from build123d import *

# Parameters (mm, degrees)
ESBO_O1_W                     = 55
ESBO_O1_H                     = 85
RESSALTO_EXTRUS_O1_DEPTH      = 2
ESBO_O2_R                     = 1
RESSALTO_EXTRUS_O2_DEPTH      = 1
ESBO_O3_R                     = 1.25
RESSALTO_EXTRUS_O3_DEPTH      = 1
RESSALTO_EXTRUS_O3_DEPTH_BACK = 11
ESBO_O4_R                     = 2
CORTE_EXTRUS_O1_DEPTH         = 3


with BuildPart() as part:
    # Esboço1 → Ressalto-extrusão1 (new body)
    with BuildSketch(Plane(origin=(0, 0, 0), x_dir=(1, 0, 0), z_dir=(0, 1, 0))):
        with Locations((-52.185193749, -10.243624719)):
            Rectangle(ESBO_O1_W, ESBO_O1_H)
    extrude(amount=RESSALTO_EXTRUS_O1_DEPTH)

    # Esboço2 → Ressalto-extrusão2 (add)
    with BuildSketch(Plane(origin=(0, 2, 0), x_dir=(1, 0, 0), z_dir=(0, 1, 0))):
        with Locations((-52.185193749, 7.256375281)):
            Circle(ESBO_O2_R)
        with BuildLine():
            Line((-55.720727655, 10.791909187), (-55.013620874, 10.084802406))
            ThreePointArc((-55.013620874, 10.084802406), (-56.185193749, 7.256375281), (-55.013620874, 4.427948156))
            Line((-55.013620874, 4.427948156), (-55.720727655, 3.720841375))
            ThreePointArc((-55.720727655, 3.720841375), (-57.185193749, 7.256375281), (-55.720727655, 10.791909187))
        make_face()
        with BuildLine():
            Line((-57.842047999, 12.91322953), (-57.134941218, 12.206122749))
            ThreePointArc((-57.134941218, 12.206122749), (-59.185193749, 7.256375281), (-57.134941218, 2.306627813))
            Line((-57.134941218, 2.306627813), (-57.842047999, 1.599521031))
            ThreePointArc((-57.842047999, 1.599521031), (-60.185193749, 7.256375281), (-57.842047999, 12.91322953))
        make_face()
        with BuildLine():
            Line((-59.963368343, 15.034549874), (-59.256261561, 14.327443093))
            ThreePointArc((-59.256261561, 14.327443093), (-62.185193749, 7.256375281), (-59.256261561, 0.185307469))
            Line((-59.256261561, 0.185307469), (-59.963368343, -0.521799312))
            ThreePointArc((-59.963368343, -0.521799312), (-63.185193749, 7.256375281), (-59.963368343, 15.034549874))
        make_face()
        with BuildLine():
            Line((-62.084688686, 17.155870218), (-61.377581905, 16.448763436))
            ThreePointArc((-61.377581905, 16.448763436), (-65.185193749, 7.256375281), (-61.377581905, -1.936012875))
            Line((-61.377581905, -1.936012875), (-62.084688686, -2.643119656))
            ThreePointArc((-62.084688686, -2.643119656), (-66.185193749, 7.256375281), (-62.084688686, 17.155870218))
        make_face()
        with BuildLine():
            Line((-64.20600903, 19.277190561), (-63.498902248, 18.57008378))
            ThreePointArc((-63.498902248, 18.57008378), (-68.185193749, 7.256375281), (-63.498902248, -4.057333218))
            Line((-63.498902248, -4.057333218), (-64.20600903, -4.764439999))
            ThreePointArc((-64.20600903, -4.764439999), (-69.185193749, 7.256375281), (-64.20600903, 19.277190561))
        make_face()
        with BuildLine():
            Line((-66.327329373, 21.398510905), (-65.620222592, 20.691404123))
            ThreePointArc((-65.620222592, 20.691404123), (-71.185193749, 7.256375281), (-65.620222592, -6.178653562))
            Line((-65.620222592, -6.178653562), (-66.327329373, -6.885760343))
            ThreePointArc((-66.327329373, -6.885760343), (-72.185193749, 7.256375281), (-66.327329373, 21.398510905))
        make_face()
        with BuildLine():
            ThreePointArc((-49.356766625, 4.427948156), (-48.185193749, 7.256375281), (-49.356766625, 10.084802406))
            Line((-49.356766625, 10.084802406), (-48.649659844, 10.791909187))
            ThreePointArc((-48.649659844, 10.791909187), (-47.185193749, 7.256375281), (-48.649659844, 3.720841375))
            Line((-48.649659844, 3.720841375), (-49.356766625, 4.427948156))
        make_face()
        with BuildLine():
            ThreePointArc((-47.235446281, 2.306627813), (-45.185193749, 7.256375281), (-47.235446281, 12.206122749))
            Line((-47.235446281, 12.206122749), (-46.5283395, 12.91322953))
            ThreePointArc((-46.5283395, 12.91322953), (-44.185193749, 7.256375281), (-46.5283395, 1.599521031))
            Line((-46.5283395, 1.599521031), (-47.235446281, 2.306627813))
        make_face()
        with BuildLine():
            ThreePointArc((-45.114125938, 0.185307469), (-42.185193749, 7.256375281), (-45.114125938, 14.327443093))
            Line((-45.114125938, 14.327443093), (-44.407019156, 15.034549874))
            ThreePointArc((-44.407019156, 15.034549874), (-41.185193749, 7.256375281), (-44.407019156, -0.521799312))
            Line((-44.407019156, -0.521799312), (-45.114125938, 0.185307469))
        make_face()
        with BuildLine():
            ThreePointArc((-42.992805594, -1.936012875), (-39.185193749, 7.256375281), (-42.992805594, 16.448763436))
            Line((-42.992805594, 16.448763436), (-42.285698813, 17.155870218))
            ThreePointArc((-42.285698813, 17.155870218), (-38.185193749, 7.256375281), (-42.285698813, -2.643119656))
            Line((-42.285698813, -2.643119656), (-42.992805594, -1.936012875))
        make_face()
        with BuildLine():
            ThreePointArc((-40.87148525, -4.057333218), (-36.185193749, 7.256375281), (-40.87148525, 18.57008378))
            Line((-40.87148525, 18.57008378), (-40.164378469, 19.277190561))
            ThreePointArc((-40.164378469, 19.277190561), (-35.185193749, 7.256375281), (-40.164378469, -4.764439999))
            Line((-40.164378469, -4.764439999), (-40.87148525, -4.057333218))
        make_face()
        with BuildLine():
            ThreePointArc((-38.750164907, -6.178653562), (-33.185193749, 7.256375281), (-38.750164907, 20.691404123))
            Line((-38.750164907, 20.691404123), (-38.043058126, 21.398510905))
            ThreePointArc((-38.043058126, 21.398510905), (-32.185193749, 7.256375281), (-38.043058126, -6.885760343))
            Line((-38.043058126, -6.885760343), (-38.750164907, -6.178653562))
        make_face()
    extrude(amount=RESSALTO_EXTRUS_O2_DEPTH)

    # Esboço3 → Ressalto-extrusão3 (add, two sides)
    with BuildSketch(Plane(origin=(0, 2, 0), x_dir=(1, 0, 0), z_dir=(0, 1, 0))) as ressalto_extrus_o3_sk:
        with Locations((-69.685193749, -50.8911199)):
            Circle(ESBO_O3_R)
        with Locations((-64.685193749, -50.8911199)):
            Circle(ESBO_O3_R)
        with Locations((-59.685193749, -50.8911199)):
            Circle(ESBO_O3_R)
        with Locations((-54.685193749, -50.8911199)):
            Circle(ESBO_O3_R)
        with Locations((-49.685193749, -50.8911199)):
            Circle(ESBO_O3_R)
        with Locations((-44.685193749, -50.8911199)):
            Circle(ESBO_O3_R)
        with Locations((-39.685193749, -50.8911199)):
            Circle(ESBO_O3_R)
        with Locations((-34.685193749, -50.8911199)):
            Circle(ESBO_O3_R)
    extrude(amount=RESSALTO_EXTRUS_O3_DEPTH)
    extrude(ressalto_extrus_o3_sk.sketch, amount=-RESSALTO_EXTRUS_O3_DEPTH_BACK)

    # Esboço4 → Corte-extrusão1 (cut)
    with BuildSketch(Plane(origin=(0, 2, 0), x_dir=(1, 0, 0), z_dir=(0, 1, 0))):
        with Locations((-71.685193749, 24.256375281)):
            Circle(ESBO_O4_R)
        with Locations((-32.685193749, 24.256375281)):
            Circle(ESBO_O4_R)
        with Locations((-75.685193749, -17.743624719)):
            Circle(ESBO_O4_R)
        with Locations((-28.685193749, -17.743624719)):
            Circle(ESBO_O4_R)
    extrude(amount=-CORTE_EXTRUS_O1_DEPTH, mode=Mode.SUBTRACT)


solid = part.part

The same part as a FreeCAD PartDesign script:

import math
import FreeCAD as App
import Part
import Sketcher
Q = App.Units.Quantity

doc = App.newDocument("Part")
body = doc.addObject("PartDesign::Body", "Body")

sketch1 = body.newObject("Sketcher::SketchObject", "Sketch")
sketch1.AttachmentSupport = (doc.getObject("XZ_Plane"), [""])
sketch1.MapMode = "FlatFace"
sketch1.addGeometry([
    Part.LineSegment(App.Vector(-80, -32, 0), App.Vector(-80, 53, 0)),
    Part.LineSegment(App.Vector(-80, 53, 0), App.Vector(-25, 53, 0)),
    Part.LineSegment(App.Vector(-25, 53, 0), App.Vector(-25, -32, 0)),
    Part.LineSegment(App.Vector(-25, -32, 0), App.Vector(-80, -32, 0)),
], False)
sketch1.addConstraint([
    Sketcher.Constraint("Coincident", 0, 2, 1, 1),
    Sketcher.Constraint("Coincident", 1, 2, 2, 1),
    Sketcher.Constraint("Coincident", 2, 2, 3, 1),
    Sketcher.Constraint("Coincident", 3, 2, 0, 1),
    Sketcher.Constraint("Vertical", 0),
    Sketcher.Constraint("Horizontal", 1),
    Sketcher.Constraint("Vertical", 2),
    Sketcher.Constraint("Horizontal", 3),
    Sketcher.Constraint("DistanceX", 1, 1, 1, 2, Q("55 mm")),
    Sketcher.Constraint("DistanceY", 0, 1, 0, 2, Q("85 mm")),
    Sketcher.Constraint("DistanceX", 0, 2, -1, 1, Q("79.685194 mm")),
    Sketcher.Constraint("DistanceY", -1, 1, 0, 2, Q("52.743625 mm")),
])
pad1 = body.newObject("PartDesign::Pad", "Pad")
pad1.Profile = sketch1
pad1.Length = 2
pad1.Reversed = True

sketch2 = body.newObject("Sketcher::SketchObject", "Sketch001")
sketch2.AttachmentSupport = (doc.getObject("XZ_Plane"), [""])
sketch2.MapMode = "FlatFace"
sketch2.AttachmentOffset = App.Placement(App.Vector(0, 0, -2), App.Rotation())
sketch2.addGeometry([
    Part.Circle(App.Vector(-52.2, -7.3, 0), App.Vector(0, 0, 1), 1),
    Part.LineSegment(App.Vector(-55, -10.1, 0), App.Vector(-55.7, -10.8, 0)),
    Part.ArcOfCircle(Part.Circle(App.Vector(-52.2, -7.3, 0), App.Vector(0, 0, 1), 5), math.radians(135), math.radians(225)),
    Part.LineSegment(App.Vector(-55.7, -3.7, 0), App.Vector(-55, -4.4, 0)),
    Part.ArcOfCircle(Part.Circle(App.Vector(-52.2, -7.3, 0), App.Vector(0, 0, 1), 4), math.radians(135), math.radians(225)),
    Part.LineSegment(App.Vector(-57.1, -12.2, 0), App.Vector(-57.8, -12.9, 0)),
    Part.ArcOfCircle(Part.Circle(App.Vector(-52.2, -7.3, 0), App.Vector(0, 0, 1), 8), math.radians(135), math.radians(225)),
    Part.LineSegment(App.Vector(-57.8, -1.6, 0), App.Vector(-57.1, -2.3, 0)),
    Part.ArcOfCircle(Part.Circle(App.Vector(-52.2, -7.3, 0), App.Vector(0, 0, 1), 7), math.radians(135), math.radians(225)),
    Part.LineSegment(App.Vector(-59.3, -14.3, 0), App.Vector(-60, -15, 0)),
    Part.ArcOfCircle(Part.Circle(App.Vector(-52.2, -7.3, 0), App.Vector(0, 0, 1), 11), math.radians(135), math.radians(225)),
    Part.LineSegment(App.Vector(-60, 0.5, 0), App.Vector(-59.3, -0.2, 0)),
    Part.ArcOfCircle(Part.Circle(App.Vector(-52.2, -7.3, 0), App.Vector(0, 0, 1), 10), math.radians(135), math.radians(225)),
    Part.LineSegment(App.Vector(-61.4, -16.4, 0), App.Vector(-62.1, -17.2, 0)),
    Part.ArcOfCircle(Part.Circle(App.Vector(-52.2, -7.3, 0), App.Vector(0, 0, 1), 14), math.radians(135), math.radians(225)),
    Part.LineSegment(App.Vector(-62.1, 2.6, 0), App.Vector(-61.4, 1.9, 0)),
    Part.ArcOfCircle(Part.Circle(App.Vector(-52.2, -7.3, 0), App.Vector(0, 0, 1), 13), math.radians(135), math.radians(225)),
    Part.LineSegment(App.Vector(-63.5, -18.6, 0), App.Vector(-64.2, -19.3, 0)),
    Part.ArcOfCircle(Part.Circle(App.Vector(-52.2, -7.3, 0), App.Vector(0, 0, 1), 17), math.radians(135), math.radians(225)),
    Part.LineSegment(App.Vector(-64.2, 4.8, 0), App.Vector(-63.5, 4.1, 0)),
    Part.ArcOfCircle(Part.Circle(App.Vector(-52.2, -7.3, 0), App.Vector(0, 0, 1), 16), math.radians(135), math.radians(225)),
    Part.LineSegment(App.Vector(-65.6, -20.7, 0), App.Vector(-66.3, -21.4, 0)),
    Part.ArcOfCircle(Part.Circle(App.Vector(-52.2, -7.3, 0), App.Vector(0, 0, 1), 20), math.radians(135), math.radians(225)),
    Part.LineSegment(App.Vector(-66.3, 6.9, 0), App.Vector(-65.6, 6.2, 0)),
    Part.ArcOfCircle(Part.Circle(App.Vector(-52.2, -7.3, 0), App.Vector(0, 0, 1), 19), math.radians(135), math.radians(225)),
    Part.ArcOfCircle(Part.Circle(App.Vector(-52.2, -7.3, 0), App.Vector(0, 0, 1), 4), math.radians(-45), math.radians(45)),
    Part.LineSegment(App.Vector(-49.4, -4.4, 0), App.Vector(-48.6, -3.7, 0)),
    Part.ArcOfCircle(Part.Circle(App.Vector(-52.2, -7.3, 0), App.Vector(0, 0, 1), 5), math.radians(-45), math.radians(45)),
    Part.LineSegment(App.Vector(-48.6, -10.8, 0), App.Vector(-49.4, -10.1, 0)),
    Part.ArcOfCircle(Part.Circle(App.Vector(-52.2, -7.3, 0), App.Vector(0, 0, 1), 7), math.radians(-45), math.radians(45)),
    Part.LineSegment(App.Vector(-47.2, -2.3, 0), App.Vector(-46.5, -1.6, 0)),
    Part.ArcOfCircle(Part.Circle(App.Vector(-52.2, -7.3, 0), App.Vector(0, 0, 1), 8), math.radians(-45), math.radians(45)),
    Part.LineSegment(App.Vector(-46.5, -12.9, 0), App.Vector(-47.2, -12.2, 0)),
    Part.ArcOfCircle(Part.Circle(App.Vector(-52.2, -7.3, 0), App.Vector(0, 0, 1), 10), math.radians(-45), math.radians(45)),
    Part.LineSegment(App.Vector(-45.1, -0.2, 0), App.Vector(-44.4, 0.5, 0)),
    Part.ArcOfCircle(Part.Circle(App.Vector(-52.2, -7.3, 0), App.Vector(0, 0, 1), 11), math.radians(-45), math.radians(45)),
    Part.LineSegment(App.Vector(-44.4, -15, 0), App.Vector(-45.1, -14.3, 0)),
    Part.ArcOfCircle(Part.Circle(App.Vector(-52.2, -7.3, 0), App.Vector(0, 0, 1), 13), math.radians(-45), math.radians(45)),
    Part.LineSegment(App.Vector(-43, 1.9, 0), App.Vector(-42.3, 2.6, 0)),
    Part.ArcOfCircle(Part.Circle(App.Vector(-52.2, -7.3, 0), App.Vector(0, 0, 1), 14), math.radians(-45), math.radians(45)),
    Part.LineSegment(App.Vector(-42.3, -17.2, 0), App.Vector(-43, -16.4, 0)),
    Part.ArcOfCircle(Part.Circle(App.Vector(-52.2, -7.3, 0), App.Vector(0, 0, 1), 16), math.radians(-45), math.radians(45)),
    Part.LineSegment(App.Vector(-40.9, 4.1, 0), App.Vector(-40.2, 4.8, 0)),
    Part.ArcOfCircle(Part.Circle(App.Vector(-52.2, -7.3, 0), App.Vector(0, 0, 1), 17), math.radians(-45), math.radians(45)),
    Part.LineSegment(App.Vector(-40.2, -19.3, 0), App.Vector(-40.9, -18.6, 0)),
    Part.ArcOfCircle(Part.Circle(App.Vector(-52.2, -7.3, 0), App.Vector(0, 0, 1), 19), math.radians(-45), math.radians(45)),
    Part.LineSegment(App.Vector(-38.8, 6.2, 0), App.Vector(-38, 6.9, 0)),
    Part.ArcOfCircle(Part.Circle(App.Vector(-52.2, -7.3, 0), App.Vector(0, 0, 1), 20), math.radians(-45), math.radians(45)),
    Part.LineSegment(App.Vector(-38, -21.4, 0), App.Vector(-38.8, -20.7, 0)),
], False)
sketch2.addConstraint([
    Sketcher.Constraint("Coincident", 1, 2, 2, 2),
    Sketcher.Constraint("Coincident", 2, 1, 3, 1),
    Sketcher.Constraint("Coincident", 3, 2, 4, 1),
    Sketcher.Constraint("Coincident", 4, 2, 1, 1),
    Sketcher.Constraint("Coincident", 5, 2, 6, 2),
    Sketcher.Constraint("Coincident", 6, 1, 7, 1),
    Sketcher.Constraint("Coincident", 7, 2, 8, 1),
    Sketcher.Constraint("Coincident", 8, 2, 5, 1),
    Sketcher.Constraint("Coincident", 9, 2, 10, 2),
    Sketcher.Constraint("Coincident", 10, 1, 11, 1),
    Sketcher.Constraint("Coincident", 11, 2, 12, 1),
    Sketcher.Constraint("Coincident", 12, 2, 9, 1),
    Sketcher.Constraint("Coincident", 13, 2, 14, 2),
    Sketcher.Constraint("Coincident", 14, 1, 15, 1),
    Sketcher.Constraint("Coincident", 15, 2, 16, 1),
    Sketcher.Constraint("Coincident", 16, 2, 13, 1),
    Sketcher.Constraint("Coincident", 17, 2, 18, 2),
    Sketcher.Constraint("Coincident", 18, 1, 19, 1),
    Sketcher.Constraint("Coincident", 19, 2, 20, 1),
    Sketcher.Constraint("Coincident", 20, 2, 17, 1),
    Sketcher.Constraint("Coincident", 21, 2, 22, 2),
    Sketcher.Constraint("Coincident", 22, 1, 23, 1),
    Sketcher.Constraint("Coincident", 23, 2, 24, 1),
    Sketcher.Constraint("Coincident", 24, 2, 21, 1),
    Sketcher.Constraint("Coincident", 25, 2, 26, 1),
    Sketcher.Constraint("Coincident", 26, 2, 27, 2),
    Sketcher.Constraint("Coincident", 27, 1, 28, 1),
    Sketcher.Constraint("Coincident", 28, 2, 25, 1),
    Sketcher.Constraint("Coincident", 29, 2, 30, 1),
    Sketcher.Constraint("Coincident", 30, 2, 31, 2),
    Sketcher.Constraint("Coincident", 31, 1, 32, 1),
    Sketcher.Constraint("Coincident", 32, 2, 29, 1),
    Sketcher.Constraint("Coincident", 33, 2, 34, 1),
    Sketcher.Constraint("Coincident", 34, 2, 35, 2),
    Sketcher.Constraint("Coincident", 35, 1, 36, 1),
    Sketcher.Constraint("Coincident", 36, 2, 33, 1),
    Sketcher.Constraint("Coincident", 37, 2, 38, 1),
    Sketcher.Constraint("Coincident", 38, 2, 39, 2),
    Sketcher.Constraint("Coincident", 39, 1, 40, 1),
    Sketcher.Constraint("Coincident", 40, 2, 37, 1),
    Sketcher.Constraint("Coincident", 41, 2, 42, 1),
    Sketcher.Constraint("Coincident", 42, 2, 43, 2),
    Sketcher.Constraint("Coincident", 43, 1, 44, 1),
    Sketcher.Constraint("Coincident", 44, 2, 41, 1),
    Sketcher.Constraint("Coincident", 45, 2, 46, 1),
    Sketcher.Constraint("Coincident", 46, 2, 47, 2),
    Sketcher.Constraint("Coincident", 47, 1, 48, 1),
    Sketcher.Constraint("Coincident", 48, 2, 45, 1),
    Sketcher.Constraint("Coincident", 2, 3, 0, 3),
    Sketcher.Constraint("Coincident", 4, 3, 0, 3),
    Sketcher.Constraint("Coincident", 6, 3, 0, 3),
    Sketcher.Constraint("Coincident", 8, 3, 0, 3),
    Sketcher.Constraint("Coincident", 10, 3, 0, 3),
    Sketcher.Constraint("Coincident", 12, 3, 0, 3),
    Sketcher.Constraint("Coincident", 14, 3, 0, 3),
    Sketcher.Constraint("Coincident", 16, 3, 0, 3),
    Sketcher.Constraint("Coincident", 18, 3, 0, 3),
    Sketcher.Constraint("Coincident", 20, 3, 0, 3),
    Sketcher.Constraint("Coincident", 22, 3, 0, 3),
    Sketcher.Constraint("Coincident", 24, 3, 0, 3),
    Sketcher.Constraint("Coincident", 25, 3, 0, 3),
    Sketcher.Constraint("Coincident", 27, 3, 0, 3),
    Sketcher.Constraint("Coincident", 29, 3, 0, 3),
    Sketcher.Constraint("Coincident", 31, 3, 0, 3),
    Sketcher.Constraint("Coincident", 33, 3, 0, 3),
    Sketcher.Constraint("Coincident", 35, 3, 0, 3),
    Sketcher.Constraint("Coincident", 37, 3, 0, 3),
    Sketcher.Constraint("Coincident", 39, 3, 0, 3),
    Sketcher.Constraint("Coincident", 41, 3, 0, 3),
    Sketcher.Constraint("Coincident", 43, 3, 0, 3),
    Sketcher.Constraint("Coincident", 45, 3, 0, 3),
    Sketcher.Constraint("Coincident", 47, 3, 0, 3),
    Sketcher.Constraint("Equal", 4, 25),
    Sketcher.Constraint("Equal", 2, 27),
    Sketcher.Constraint("Equal", 8, 29),
    Sketcher.Constraint("Equal", 6, 31),
    Sketcher.Constraint("Equal", 12, 33),
    Sketcher.Constraint("Equal", 10, 35),
    Sketcher.Constraint("Equal", 16, 37),
    Sketcher.Constraint("Equal", 14, 39),
    Sketcher.Constraint("Equal", 20, 41),
    Sketcher.Constraint("Equal", 18, 43),
    Sketcher.Constraint("Equal", 24, 45),
    Sketcher.Constraint("Equal", 22, 47),
    Sketcher.Constraint("Perpendicular", 1, 3),
    Sketcher.Constraint("Perpendicular", 3, 5),
    Sketcher.Constraint("Perpendicular", 5, 7),
    Sketcher.Constraint("Perpendicular", 7, 9),
    Sketcher.Constraint("Perpendicular", 9, 11),
    Sketcher.Constraint("Perpendicular", 11, 13),
    Sketcher.Constraint("Perpendicular", 13, 15),
    Sketcher.Constraint("Perpendicular", 15, 17),
    Sketcher.Constraint("Perpendicular", 17, 19),
    Sketcher.Constraint("Perpendicular", 19, 21),
    Sketcher.Constraint("Perpendicular", 21, 23),
    Sketcher.Constraint("Perpendicular", 23, 26),
    Sketcher.Constraint("Perpendicular", 26, 28),
    Sketcher.Constraint("Perpendicular", 28, 30),
    Sketcher.Constraint("Perpendicular", 30, 32),
    Sketcher.Constraint("Perpendicular", 32, 34),
    Sketcher.Constraint("Perpendicular", 34, 36),
    Sketcher.Constraint("Perpendicular", 36, 38),
    Sketcher.Constraint("Perpendicular", 38, 40),
    Sketcher.Constraint("Perpendicular", 40, 42),
    Sketcher.Constraint("Perpendicular", 42, 44),
    Sketcher.Constraint("Perpendicular", 44, 46),
    Sketcher.Constraint("Perpendicular", 46, 48),
    Sketcher.Constraint("Horizontal", 3, 2, 25, 2),
    Sketcher.Constraint("Horizontal", 2, 1, 26, 2),
    Sketcher.Constraint("Horizontal", 1, 2, 27, 1),
    Sketcher.Constraint("Horizontal", 7, 2, 29, 2),
    Sketcher.Constraint("Horizontal", 5, 2, 31, 1),
    Sketcher.Constraint("Horizontal", 11, 2, 33, 2),
    Sketcher.Constraint("Horizontal", 9, 2, 35, 1),
    Sketcher.Constraint("Horizontal", 15, 2, 37, 2),
    Sketcher.Constraint("Horizontal", 13, 2, 39, 1),
    Sketcher.Constraint("Horizontal", 19, 2, 41, 2),
    Sketcher.Constraint("Horizontal", 17, 2, 43, 1),
    Sketcher.Constraint("Horizontal", 23, 2, 45, 2),
    Sketcher.Constraint("Horizontal", 21, 2, 47, 1),
    Sketcher.Constraint("Vertical", 1, 2, 2, 1),
    Sketcher.Constraint("Vertical", 5, 2, 6, 1),
    Sketcher.Constraint("Vertical", 9, 2, 10, 1),
    Sketcher.Constraint("Vertical", 13, 2, 14, 1),
    Sketcher.Constraint("Vertical", 17, 2, 18, 1),
    Sketcher.Constraint("Vertical", 21, 2, 22, 1),
    Sketcher.Constraint("Equal", 3, 5),
    Sketcher.Constraint("Equal", 7, 9),
    Sketcher.Constraint("Equal", 11, 13),
    Sketcher.Constraint("Equal", 15, 17),
    Sketcher.Constraint("Equal", 19, 21),
    Sketcher.Constraint("Diameter", 0, Q("2 mm")),
    Sketcher.Constraint("Radius", 2, Q("5 mm")),
    Sketcher.Constraint("Radius", 4, Q("4 mm")),
    Sketcher.Constraint("Radius", 6, Q("8 mm")),
    Sketcher.Constraint("Radius", 10, Q("11 mm")),
    Sketcher.Constraint("Radius", 14, Q("14 mm")),
    Sketcher.Constraint("Radius", 18, Q("17 mm")),
    Sketcher.Constraint("Radius", 22, Q("20 mm")),
    Sketcher.Constraint("DistanceY", -1, 1, 10, 1, Q("0.521799 mm")),
    Sketcher.Constraint("DistanceX", 38, 2, -1, 1, Q("42.285699 mm")),
    Sketcher.Constraint("DistanceY", 1, 2, -1, 1, Q("10.791909 mm")),
    Sketcher.Constraint("DistanceY", 2, 1, -1, 1, Q("3.720841 mm")),
    Sketcher.Constraint("DistanceX", 3, 2, -1, 1, Q("55.013621 mm")),
    Sketcher.Constraint("DistanceY", 5, 2, -1, 1, Q("12.91323 mm")),
    Sketcher.Constraint("DistanceX", 17, 2, -1, 1, Q("64.206009 mm")),
    Sketcher.Constraint("DistanceX", 21, 2, -1, 1, Q("66.327329 mm")),
])
pad2 = body.newObject("PartDesign::Pad", "Pad001")
pad2.Profile = sketch2
pad2.Length = 1
pad2.Reversed = True

sketch3 = body.newObject("Sketcher::SketchObject", "Sketch002")
sketch3.AttachmentSupport = (doc.getObject("XZ_Plane"), [""])
sketch3.MapMode = "FlatFace"
sketch3.AttachmentOffset = App.Placement(App.Vector(0, 0, -2), App.Rotation())
sketch3.addGeometry([
    Part.Circle(App.Vector(-69.7, 50.9, 0), App.Vector(0, 0, 1), 1.2),
    Part.Circle(App.Vector(-64.7, 50.9, 0), App.Vector(0, 0, 1), 1.2),
    Part.Circle(App.Vector(-59.7, 50.9, 0), App.Vector(0, 0, 1), 1.2),
    Part.Circle(App.Vector(-54.7, 50.9, 0), App.Vector(0, 0, 1), 1.2),
    Part.Circle(App.Vector(-49.7, 50.9, 0), App.Vector(0, 0, 1), 1.2),
    Part.Circle(App.Vector(-44.7, 50.9, 0), App.Vector(0, 0, 1), 1.2),
    Part.Circle(App.Vector(-39.7, 50.9, 0), App.Vector(0, 0, 1), 1.2),
    Part.Circle(App.Vector(-34.7, 50.9, 0), App.Vector(0, 0, 1), 1.2),
], False)
sketch3.addConstraint([
    Sketcher.Constraint("Equal", 0, 1),
    Sketcher.Constraint("Equal", 1, 2),
    Sketcher.Constraint("Equal", 2, 3),
    Sketcher.Constraint("Equal", 3, 4),
    Sketcher.Constraint("Equal", 4, 5),
    Sketcher.Constraint("Equal", 5, 6),
    Sketcher.Constraint("Equal", 6, 7),
    Sketcher.Constraint("Horizontal", 0, 3, 1, 3),
    Sketcher.Constraint("Horizontal", 1, 3, 2, 3),
    Sketcher.Constraint("Horizontal", 2, 3, 3, 3),
    Sketcher.Constraint("Horizontal", 3, 3, 4, 3),
    Sketcher.Constraint("Horizontal", 4, 3, 5, 3),
    Sketcher.Constraint("Horizontal", 5, 3, 6, 3),
    Sketcher.Constraint("Horizontal", 6, 3, 7, 3),
    Sketcher.Constraint("Diameter", 0, Q("2.5 mm")),
    Sketcher.Constraint("DistanceX", 0, 3, 1, 3, Q("5 mm")),
    Sketcher.Constraint("DistanceX", 1, 3, 2, 3, Q("5 mm")),
    Sketcher.Constraint("DistanceX", 2, 3, 3, 3, Q("5 mm")),
    Sketcher.Constraint("DistanceX", 3, 3, 4, 3, Q("5 mm")),
    Sketcher.Constraint("DistanceX", 4, 3, 5, 3, Q("5 mm")),
    Sketcher.Constraint("DistanceX", 5, 3, 6, 3, Q("5 mm")),
    Sketcher.Constraint("DistanceX", 6, 3, 7, 3, Q("5 mm")),
    Sketcher.Constraint("DistanceY", -1, 1, 0, 3, Q("50.89112 mm")),
    Sketcher.Constraint("DistanceX", 0, 3, -1, 1, Q("69.685194 mm")),
])
pad3 = body.newObject("PartDesign::Pad", "Pad002")
pad3.Profile = sketch3
pad3.Type = "TwoLengths"
pad3.Length = 1
pad3.Length2 = 11
pad3.Reversed = True

sketch4 = body.newObject("Sketcher::SketchObject", "Sketch003")
sketch4.AttachmentSupport = (doc.getObject("XZ_Plane"), [""])
sketch4.MapMode = "FlatFace"
sketch4.AttachmentOffset = App.Placement(App.Vector(0, 0, -2), App.Rotation())
sketch4.addGeometry([
    Part.Circle(App.Vector(-71.7, -24.3, 0), App.Vector(0, 0, 1), 2),
    Part.Circle(App.Vector(-32.7, -24.3, 0), App.Vector(0, 0, 1), 2),
    Part.Circle(App.Vector(-75.7, 17.7, 0), App.Vector(0, 0, 1), 2),
    Part.Circle(App.Vector(-28.7, 17.7, 0), App.Vector(0, 0, 1), 2),
], False)
sketch4.addConstraint([
    Sketcher.Constraint("Equal", 0, 1),
    Sketcher.Constraint("Equal", 1, 2),
    Sketcher.Constraint("Equal", 2, 3),
    Sketcher.Constraint("Horizontal", 0, 3, 1, 3),
    Sketcher.Constraint("Horizontal", 2, 3, 3, 3),
    Sketcher.Constraint("Diameter", 0, Q("4 mm")),
    Sketcher.Constraint("DistanceX", 0, 3, 1, 3, Q("39 mm")),
    Sketcher.Constraint("DistanceX", 2, 3, 0, 3, Q("4 mm")),
    Sketcher.Constraint("DistanceY", 0, 3, 2, 3, Q("42 mm")),
    Sketcher.Constraint("DistanceX", 1, 3, 3, 3, Q("4 mm")),
    Sketcher.Constraint("DistanceX", 0, 3, -1, 1, Q("71.685194 mm")),
    Sketcher.Constraint("DistanceY", 0, 3, -1, 1, Q("24.256375 mm")),
])
pocket1 = body.newObject("PartDesign::Pocket", "Pocket")
pocket1.Profile = sketch4
pocket1.Length = 3
pocket1.Reversed = True

doc.recompute()
